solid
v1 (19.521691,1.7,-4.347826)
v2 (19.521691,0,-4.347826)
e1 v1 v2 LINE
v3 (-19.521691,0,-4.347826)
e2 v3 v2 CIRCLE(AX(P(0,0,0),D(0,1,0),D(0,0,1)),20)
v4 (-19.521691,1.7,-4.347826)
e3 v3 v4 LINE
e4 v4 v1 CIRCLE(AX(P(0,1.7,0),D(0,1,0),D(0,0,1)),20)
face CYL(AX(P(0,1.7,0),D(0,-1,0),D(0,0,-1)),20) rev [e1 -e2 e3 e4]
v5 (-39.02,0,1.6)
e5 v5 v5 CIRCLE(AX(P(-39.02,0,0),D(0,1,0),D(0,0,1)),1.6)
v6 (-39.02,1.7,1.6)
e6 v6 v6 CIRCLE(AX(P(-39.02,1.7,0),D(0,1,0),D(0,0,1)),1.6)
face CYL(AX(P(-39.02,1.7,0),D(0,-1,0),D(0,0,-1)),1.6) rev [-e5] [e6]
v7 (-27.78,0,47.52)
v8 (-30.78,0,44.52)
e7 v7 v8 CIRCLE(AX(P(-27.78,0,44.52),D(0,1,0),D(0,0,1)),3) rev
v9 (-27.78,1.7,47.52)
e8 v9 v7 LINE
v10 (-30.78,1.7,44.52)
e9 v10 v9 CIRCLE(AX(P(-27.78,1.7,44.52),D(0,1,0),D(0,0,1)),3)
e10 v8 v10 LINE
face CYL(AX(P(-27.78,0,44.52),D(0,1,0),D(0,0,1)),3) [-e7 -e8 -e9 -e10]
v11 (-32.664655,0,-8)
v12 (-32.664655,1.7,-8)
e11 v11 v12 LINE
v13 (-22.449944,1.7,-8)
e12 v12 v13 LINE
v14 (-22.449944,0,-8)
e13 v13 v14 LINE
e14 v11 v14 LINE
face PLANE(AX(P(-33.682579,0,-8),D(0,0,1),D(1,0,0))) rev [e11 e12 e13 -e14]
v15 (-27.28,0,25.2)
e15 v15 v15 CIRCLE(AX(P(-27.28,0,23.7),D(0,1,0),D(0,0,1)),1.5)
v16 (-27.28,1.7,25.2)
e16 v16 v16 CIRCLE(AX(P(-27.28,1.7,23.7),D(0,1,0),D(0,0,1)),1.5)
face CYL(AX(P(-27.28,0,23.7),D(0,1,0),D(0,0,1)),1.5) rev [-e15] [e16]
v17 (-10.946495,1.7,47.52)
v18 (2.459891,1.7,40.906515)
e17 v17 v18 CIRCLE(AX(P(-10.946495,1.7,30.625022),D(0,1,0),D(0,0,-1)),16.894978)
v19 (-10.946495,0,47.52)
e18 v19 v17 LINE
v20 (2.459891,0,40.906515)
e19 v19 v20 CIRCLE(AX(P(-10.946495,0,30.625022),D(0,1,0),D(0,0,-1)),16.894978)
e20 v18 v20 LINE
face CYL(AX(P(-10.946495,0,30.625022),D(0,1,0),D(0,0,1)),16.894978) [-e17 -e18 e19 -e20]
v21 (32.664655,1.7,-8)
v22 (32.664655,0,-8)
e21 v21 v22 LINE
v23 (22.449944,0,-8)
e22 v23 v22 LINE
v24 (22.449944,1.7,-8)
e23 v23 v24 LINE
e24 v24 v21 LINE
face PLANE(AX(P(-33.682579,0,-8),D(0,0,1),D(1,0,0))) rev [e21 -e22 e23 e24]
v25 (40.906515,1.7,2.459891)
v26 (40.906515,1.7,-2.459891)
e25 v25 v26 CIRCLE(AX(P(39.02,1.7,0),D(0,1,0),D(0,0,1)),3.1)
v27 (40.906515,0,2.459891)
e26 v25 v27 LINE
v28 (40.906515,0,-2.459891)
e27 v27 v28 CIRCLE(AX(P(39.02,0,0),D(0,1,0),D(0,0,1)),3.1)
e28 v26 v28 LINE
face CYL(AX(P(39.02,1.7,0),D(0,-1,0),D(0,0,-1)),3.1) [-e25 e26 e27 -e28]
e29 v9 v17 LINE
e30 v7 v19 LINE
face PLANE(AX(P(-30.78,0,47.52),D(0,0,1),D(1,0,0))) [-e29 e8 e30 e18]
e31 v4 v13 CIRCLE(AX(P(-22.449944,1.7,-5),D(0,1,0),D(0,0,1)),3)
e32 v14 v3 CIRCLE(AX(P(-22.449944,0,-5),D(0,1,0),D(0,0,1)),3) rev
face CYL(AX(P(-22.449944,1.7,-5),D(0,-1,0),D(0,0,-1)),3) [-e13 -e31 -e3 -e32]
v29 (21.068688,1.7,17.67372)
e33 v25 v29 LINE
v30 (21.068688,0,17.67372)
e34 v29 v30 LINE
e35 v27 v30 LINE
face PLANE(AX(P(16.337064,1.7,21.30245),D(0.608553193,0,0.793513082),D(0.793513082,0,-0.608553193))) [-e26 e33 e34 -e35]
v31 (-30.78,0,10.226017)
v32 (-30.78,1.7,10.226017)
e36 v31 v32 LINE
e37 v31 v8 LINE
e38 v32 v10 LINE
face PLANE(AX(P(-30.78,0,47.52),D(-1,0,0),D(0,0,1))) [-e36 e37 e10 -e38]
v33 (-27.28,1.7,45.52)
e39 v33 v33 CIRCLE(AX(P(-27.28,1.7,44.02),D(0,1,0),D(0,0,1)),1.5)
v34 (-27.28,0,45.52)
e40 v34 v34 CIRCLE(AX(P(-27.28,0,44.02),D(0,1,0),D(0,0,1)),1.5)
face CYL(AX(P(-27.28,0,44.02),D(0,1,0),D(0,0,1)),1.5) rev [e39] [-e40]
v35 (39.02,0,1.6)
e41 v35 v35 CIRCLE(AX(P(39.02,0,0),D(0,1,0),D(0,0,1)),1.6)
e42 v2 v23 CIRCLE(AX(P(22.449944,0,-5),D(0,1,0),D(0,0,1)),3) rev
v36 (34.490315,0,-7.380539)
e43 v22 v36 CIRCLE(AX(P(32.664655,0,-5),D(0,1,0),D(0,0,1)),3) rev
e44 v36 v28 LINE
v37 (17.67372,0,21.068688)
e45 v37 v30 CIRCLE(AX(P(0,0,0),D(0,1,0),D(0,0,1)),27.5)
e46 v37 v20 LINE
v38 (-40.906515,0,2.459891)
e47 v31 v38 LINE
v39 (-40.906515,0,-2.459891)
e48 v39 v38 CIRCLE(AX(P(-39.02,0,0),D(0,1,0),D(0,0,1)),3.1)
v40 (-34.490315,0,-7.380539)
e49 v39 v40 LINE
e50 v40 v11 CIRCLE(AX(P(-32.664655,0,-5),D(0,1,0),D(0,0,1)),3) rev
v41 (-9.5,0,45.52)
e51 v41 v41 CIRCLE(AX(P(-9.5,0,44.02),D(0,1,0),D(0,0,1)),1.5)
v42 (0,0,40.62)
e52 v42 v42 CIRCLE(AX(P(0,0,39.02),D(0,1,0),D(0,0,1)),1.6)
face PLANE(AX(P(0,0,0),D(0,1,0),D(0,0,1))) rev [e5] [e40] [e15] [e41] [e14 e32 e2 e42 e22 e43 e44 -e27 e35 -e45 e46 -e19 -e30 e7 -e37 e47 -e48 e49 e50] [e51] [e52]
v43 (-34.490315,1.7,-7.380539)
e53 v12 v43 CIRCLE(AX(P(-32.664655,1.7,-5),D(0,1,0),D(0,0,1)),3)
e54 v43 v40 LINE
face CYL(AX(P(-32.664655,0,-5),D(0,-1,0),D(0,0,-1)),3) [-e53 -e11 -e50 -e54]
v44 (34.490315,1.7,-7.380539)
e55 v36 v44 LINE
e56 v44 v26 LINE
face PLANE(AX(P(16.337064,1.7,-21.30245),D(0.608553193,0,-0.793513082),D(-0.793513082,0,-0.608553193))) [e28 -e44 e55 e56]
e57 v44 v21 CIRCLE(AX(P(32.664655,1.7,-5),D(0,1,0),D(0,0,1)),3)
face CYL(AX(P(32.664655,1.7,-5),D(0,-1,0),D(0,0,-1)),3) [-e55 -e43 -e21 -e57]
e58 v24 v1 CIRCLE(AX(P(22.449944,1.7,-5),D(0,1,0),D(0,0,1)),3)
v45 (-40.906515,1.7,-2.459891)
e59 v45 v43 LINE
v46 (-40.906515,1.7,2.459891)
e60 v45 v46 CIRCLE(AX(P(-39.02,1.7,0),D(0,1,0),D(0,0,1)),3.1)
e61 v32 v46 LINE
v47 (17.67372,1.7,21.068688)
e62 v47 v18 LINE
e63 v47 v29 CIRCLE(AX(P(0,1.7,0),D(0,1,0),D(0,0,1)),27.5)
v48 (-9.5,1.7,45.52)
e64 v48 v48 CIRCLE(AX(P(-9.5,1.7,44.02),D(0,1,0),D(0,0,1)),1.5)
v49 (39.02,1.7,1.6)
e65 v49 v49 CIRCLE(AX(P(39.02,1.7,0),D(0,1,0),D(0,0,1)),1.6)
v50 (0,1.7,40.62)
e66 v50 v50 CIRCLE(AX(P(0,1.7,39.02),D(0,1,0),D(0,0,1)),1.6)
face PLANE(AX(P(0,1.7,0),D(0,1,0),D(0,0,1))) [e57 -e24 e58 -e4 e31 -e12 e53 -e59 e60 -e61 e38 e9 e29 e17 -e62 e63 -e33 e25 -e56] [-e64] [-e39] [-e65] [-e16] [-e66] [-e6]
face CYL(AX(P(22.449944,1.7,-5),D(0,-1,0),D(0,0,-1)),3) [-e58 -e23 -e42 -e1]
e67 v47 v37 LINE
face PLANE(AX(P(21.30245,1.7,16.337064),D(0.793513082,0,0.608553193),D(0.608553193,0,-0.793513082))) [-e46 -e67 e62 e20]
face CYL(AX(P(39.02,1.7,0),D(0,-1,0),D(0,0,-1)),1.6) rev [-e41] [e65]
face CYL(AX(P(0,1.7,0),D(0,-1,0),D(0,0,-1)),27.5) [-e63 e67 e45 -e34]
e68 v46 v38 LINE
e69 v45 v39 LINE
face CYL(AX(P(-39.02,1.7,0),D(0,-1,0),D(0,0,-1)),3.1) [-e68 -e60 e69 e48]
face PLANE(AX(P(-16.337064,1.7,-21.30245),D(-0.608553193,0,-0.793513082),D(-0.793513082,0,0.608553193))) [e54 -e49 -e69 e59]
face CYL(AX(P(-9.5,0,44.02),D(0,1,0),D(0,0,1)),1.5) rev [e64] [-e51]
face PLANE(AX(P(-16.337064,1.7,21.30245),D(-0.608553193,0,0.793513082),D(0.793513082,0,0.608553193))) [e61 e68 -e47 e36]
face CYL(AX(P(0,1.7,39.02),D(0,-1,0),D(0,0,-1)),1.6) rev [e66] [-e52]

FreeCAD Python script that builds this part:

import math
import FreeCAD as App
import Part
import Sketcher
from FreeCAD import Vector
Q = App.Units.Quantity


def edges_at(feature, points):
    """Names of the edges that pass closest to the given points."""
    edges = feature.Shape.Edges
    near = lambda p: min(range(len(edges)), key=lambda i: edges[i].distToShape(Part.Vertex(*p))[0])
    return sorted({f"Edge{near(p) + 1}" for p in points})

doc = App.newDocument("Part")
body = doc.addObject("PartDesign::Body", "Body")

sketch1 = body.newObject("Sketcher::SketchObject", "Sketch")
sketch1.AttachmentSupport = (doc.getObject("XZ_Plane"), [""])
sketch1.MapMode = "FlatFace"
sketch1.addGeometry(Part.LineSegment(Vector(-17.7, 21.1, 0), Vector(-2.5, 40.9, 0)), False)
sketch1.addGeometry(Part.ArcOfCircle(Part.Circle(Vector(0, 39, 0), Vector(0, 0, 1), 3.1), math.radians(37), math.radians(143)), False)
sketch1.addGeometry(Part.LineSegment(Vector(2.5, 40.9, 0), Vector(17.7, 21.1, 0)), False)
sketch1.addGeometry(Part.ArcOfCircle(Part.Circle(Vector(0, 0, 0), Vector(0, 0, 1), 27.5), math.radians(39.99), math.radians(50.01)), False)
sketch1.addGeometry(Part.LineSegment(Vector(21.1, 17.7, 0), Vector(40.9, 2.5, 0)), False)
sketch1.addGeometry(Part.ArcOfCircle(Part.Circle(Vector(39, 0, 0), Vector(0, 0, 1), 3.1), math.radians(-53), math.radians(53)), False)
sketch1.addGeometry(Part.LineSegment(Vector(40.9, -2.5, 0), Vector(21.1, -17.7, 0)), False)
sketch1.addGeometry(Part.ArcOfCircle(Part.Circle(Vector(0, 0, 0), Vector(0, 0, 1), 27.5), math.radians(-50.01), math.radians(-39.99)), False)
sketch1.addGeometry(Part.LineSegment(Vector(17.7, -21.1, 0), Vector(2.5, -40.9, 0)), False)
sketch1.addGeometry(Part.ArcOfCircle(Part.Circle(Vector(0, -39, 0), Vector(0, 0, 1), 3.1), math.radians(-143), math.radians(-37)), False)
sketch1.addGeometry(Part.LineSegment(Vector(-2.5, -40.9, 0), Vector(-17.7, -21.1, 0)), False)
sketch1.addGeometry(Part.ArcOfCircle(Part.Circle(Vector(0, 0, 0), Vector(0, 0, 1), 27.5), math.radians(-140.01), math.radians(-129.99)), False)
sketch1.addGeometry(Part.LineSegment(Vector(-21.1, -17.7, 0), Vector(-40.9, -2.5, 0)), False)
sketch1.addGeometry(Part.ArcOfCircle(Part.Circle(Vector(-39, 0, 0), Vector(0, 0, 1), 3.1), math.radians(127), math.radians(233)), False)
sketch1.addGeometry(Part.LineSegment(Vector(-40.9, 2.5, 0), Vector(-21.1, 17.7, 0)), False)
sketch1.addGeometry(Part.ArcOfCircle(Part.Circle(Vector(0, 0, 0), Vector(0, 0, 1), 27.5), math.radians(129.99), math.radians(140.01)), False)
sketch1.addGeometry(Part.Circle(Vector(0, 39, 0), Vector(0, 0, 1), 1.6), False)
sketch1.addGeometry(Part.Circle(Vector(-39, 0, 0), Vector(0, 0, 1), 1.6), False)
sketch1.addGeometry(Part.Circle(Vector(0, 0, 0), Vector(0, 0, 1), 20), False)
sketch1.addGeometry(Part.Circle(Vector(39, 0, 0), Vector(0, 0, 1), 1.6), False)
sketch1.addGeometry(Part.Circle(Vector(0, -39, 0), Vector(0, 0, 1), 1.6), False)
sketch1.addConstraint(Sketcher.Constraint("Tangent", 0, 2, 1, 2))
sketch1.addConstraint(Sketcher.Constraint("Tangent", 1, 1, 2, 1))
sketch1.addConstraint(Sketcher.Constraint("Coincident", 2, 2, 3, 2))
sketch1.addConstraint(Sketcher.Constraint("Coincident", 3, 1, 4, 1))
sketch1.addConstraint(Sketcher.Constraint("Tangent", 4, 2, 5, 2))
sketch1.addConstraint(Sketcher.Constraint("Tangent", 5, 1, 6, 1))
sketch1.addConstraint(Sketcher.Constraint("Coincident", 6, 2, 7, 2))
sketch1.addConstraint(Sketcher.Constraint("Coincident", 7, 1, 8, 1))
sketch1.addConstraint(Sketcher.Constraint("Tangent", 8, 2, 9, 2))
sketch1.addConstraint(Sketcher.Constraint("Tangent", 9, 1, 10, 1))
sketch1.addConstraint(Sketcher.Constraint("Coincident", 10, 2, 11, 2))
sketch1.addConstraint(Sketcher.Constraint("Coincident", 11, 1, 12, 1))
sketch1.addConstraint(Sketcher.Constraint("Tangent", 12, 2, 13, 2))
sketch1.addConstraint(Sketcher.Constraint("Tangent", 13, 1, 14, 1))
sketch1.addConstraint(Sketcher.Constraint("Coincident", 14, 2, 15, 2))
sketch1.addConstraint(Sketcher.Constraint("Coincident", 15, 1, 0, 1))
sketch1.addConstraint(Sketcher.Constraint("Coincident", 3, 3, -1, 1))
sketch1.addConstraint(Sketcher.Constraint("Coincident", 7, 3, -1, 1))
sketch1.addConstraint(Sketcher.Constraint("Coincident", 11, 3, -1, 1))
sketch1.addConstraint(Sketcher.Constraint("Coincident", 15, 3, -1, 1))
sketch1.addConstraint(Sketcher.Constraint("Coincident", 18, 3, -1, 1))
sketch1.addConstraint(Sketcher.Constraint("Coincident", 16, 3, 1, 3))
sketch1.addConstraint(Sketcher.Constraint("Coincident", 17, 3, 13, 3))
sketch1.addConstraint(Sketcher.Constraint("Coincident", 19, 3, 5, 3))
sketch1.addConstraint(Sketcher.Constraint("Coincident", 20, 3, 9, 3))
sketch1.addConstraint(Sketcher.Constraint("Equal", 1, 5))
sketch1.addConstraint(Sketcher.Constraint("Equal", 3, 7))
sketch1.addConstraint(Sketcher.Constraint("Equal", 5, 9))
sketch1.addConstraint(Sketcher.Constraint("Equal", 7, 11))
sketch1.addConstraint(Sketcher.Constraint("Equal", 9, 13))
sketch1.addConstraint(Sketcher.Constraint("Equal", 11, 15))
sketch1.addConstraint(Sketcher.Constraint("Equal", 16, 17))
sketch1.addConstraint(Sketcher.Constraint("Equal", 17, 19))
sketch1.addConstraint(Sketcher.Constraint("Equal", 19, 20))
sketch1.addConstraint(Sketcher.Constraint("Symmetric", 1, 3, 9, 3, -1, 1))
sketch1.addConstraint(Sketcher.Constraint("Symmetric", 5, 3, 13, 3, -1, 1))
sketch1.addConstraint(Sketcher.Constraint("Symmetric", 0, 2, 1, 1, -2))
sketch1.addConstraint(Sketcher.Constraint("Symmetric", 5, 1, 12, 2, -2))
sketch1.addConstraint(Sketcher.Constraint("Perpendicular", 0, 4))
sketch1.addConstraint(Sketcher.Constraint("Perpendicular", 2, 6))
sketch1.addConstraint(Sketcher.Constraint("Perpendicular", 4, 8))
sketch1.addConstraint(Sketcher.Constraint("Perpendicular", 6, 10))
sketch1.addConstraint(Sketcher.Constraint("Perpendicular", 10, 14))
sketch1.addConstraint(Sketcher.Constraint("Equal", 2, 4))
sketch1.addConstraint(Sketcher.Constraint("Diameter", 18, Q("40 mm")))
sketch1.addConstraint(Sketcher.Constraint("Diameter", 16, Q("3.2 mm")))
sketch1.addConstraint(Sketcher.Constraint("Radius", 1, Q("3.1 mm")))
sketch1.addConstraint(Sketcher.Constraint("Radius", 3, Q("27.5 mm")))
sketch1.addConstraint(Sketcher.Constraint("Distance", 0, Q("25 mm")))
sketch1.addConstraint(Sketcher.Constraint("DistanceY", -1, 1, 1, 3, Q("39.02 mm")))
pad1 = body.newObject("PartDesign::Pad", "Pad")
pad1.Profile = sketch1
pad1.Length = 1.7
pad1.Reversed = True

sketch2 = body.newObject("Sketcher::SketchObject", "Sketch001")
sketch2.AttachmentSupport = (doc.getObject("XZ_Plane"), [""])
sketch2.MapMode = "FlatFace"
sketch2.addGeometry(Part.LineSegment(Vector(-30.8, 10.2, 0), Vector(-30.8, 47.5, 0)), False)
sketch2.addGeometry(Part.LineSegment(Vector(-30.8, 47.5, 0), Vector(-10.9, 47.5, 0)), False)
sketch2.addGeometry(Part.ArcOfCircle(Part.Circle(Vector(-10.9, 30.6, 0), Vector(0, 0, 1), 16.9), math.radians(37), math.radians(90)), False)
sketch2.addGeometry(Part.ArcOfCircle(Part.Circle(Vector(0, 39, 0), Vector(0, 0, 1), 3.1), math.radians(37), math.radians(143)), False)
sketch2.addGeometry(Part.LineSegment(Vector(-2.5, 40.9, 0), Vector(-17.7, 21.1, 0)), False)
sketch2.addGeometry(Part.ArcOfCircle(Part.Circle(Vector(0, 0, 0), Vector(0, 0, 1), 27.5), math.radians(129.99), math.radians(140.01)), False)
sketch2.addGeometry(Part.LineSegment(Vector(-21.1, 17.7, 0), Vector(-30.8, 10.2, 0)), False)
sketch2.addGeometry(Part.Circle(Vector(-9.5, 44, 0), Vector(0, 0, 1), 1.5), False)
sketch2.addGeometry(Part.Circle(Vector(-27.3, 44, 0), Vector(0, 0, 1), 1.5), False)
sketch2.addGeometry(Part.Circle(Vector(-27.3, 23.7, 0), Vector(0, 0, 1), 1.5), False)
sketch2.addConstraint(Sketcher.Constraint("Coincident", 0, 2, 1, 1))
sketch2.addConstraint(Sketcher.Constraint("Tangent", 1, 2, 2, 2))
sketch2.addConstraint(Sketcher.Constraint("Tangent", 2, 1, 3, 1))
sketch2.addConstraint(Sketcher.Constraint("Tangent", 3, 2, 4, 1))
sketch2.addConstraint(Sketcher.Constraint("Coincident", 4, 2, 5, 1))
sketch2.addConstraint(Sketcher.Constraint("Coincident", 5, 2, 6, 1))
sketch2.addConstraint(Sketcher.Constraint("Coincident", 6, 2, 0, 1))
sketch2.addConstraint(Sketcher.Constraint("Vertical", 0))
sketch2.addConstraint(Sketcher.Constraint("Horizontal", 1))
sketch2.addConstraint(Sketcher.Constraint("Coincident", 5, 3, -1, 1))
sketch2.addConstraint(Sketcher.Constraint("Equal", 7, 8))
sketch2.addConstraint(Sketcher.Constraint("Equal", 8, 9))
sketch2.addConstraint(Sketcher.Constraint("Symmetric", 2, 1, 3, 2, -2))
sketch2.addConstraint(Sketcher.Constraint("Horizontal", 7, 3, 8, 3))
sketch2.addConstraint(Sketcher.Constraint("Vertical", 8, 3, 9, 3))
sketch2.addConstraint(Sketcher.Constraint("Diameter", 7, Q("3 mm")))
sketch2.addConstraint(Sketcher.Constraint("Radius", 3, Q("3.1 mm")))
sketch2.addConstraint(Sketcher.Constraint("Radius", 5, Q("27.5 mm")))
sketch2.addConstraint(Sketcher.Constraint("Distance", 4, Q("25 mm")))
sketch2.addConstraint(Sketcher.Constraint("DistanceY", 3, 3, 7, 3, Q("5 mm")))
sketch2.addConstraint(Sketcher.Constraint("DistanceX", 7, 3, -1, 1, Q("9.5 mm")))
sketch2.addConstraint(Sketcher.Constraint("DistanceY", -1, 1, 9, 3, Q("23.7 mm")))
sketch2.addConstraint(Sketcher.Constraint("DistanceX", 0, 2, 8, 3, Q("3.5 mm")))
sketch2.addConstraint(Sketcher.Constraint("DistanceY", 8, 3, 0, 2, Q("3.5 mm")))
sketch2.addConstraint(Sketcher.Constraint("DistanceY", -1, 1, 3, 3, Q("39.02 mm")))
sketch2.addConstraint(Sketcher.Constraint("DistanceX", 8, 3, -1, 1, Q("27.28 mm")))
sketch2.addConstraint(Sketcher.Constraint("DistanceY", 5, 2, 2, 3, Q("12.951302 mm")))
sketch2.addConstraint(Sketcher.Constraint("DistanceY", 0, 1, 0, 2, Q("37.293983 mm")))
pad2 = body.newObject("PartDesign::Pad", "Pad001")
pad2.Profile = sketch2
pad2.Length = 1.7
pad2.Reversed = True

sketch3 = body.newObject("Sketcher::SketchObject", "Sketch002")
sketch3.AttachmentSupport = (doc.getObject("XZ_Plane"), [""])
sketch3.MapMode = "FlatFace"
sketch3.AttachmentOffset = App.Placement(Vector(0, 0, -1.7), App.Rotation())
sketch3.addGeometry(Part.LineSegment(Vector(-34, -44, 0), Vector(-34, -8, 0)), False)
sketch3.addGeometry(Part.LineSegment(Vector(-34, -8, 0), Vector(34, -8, 0)), False)
sketch3.addGeometry(Part.LineSegment(Vector(34, -8, 0), Vector(34, -44, 0)), False)
sketch3.addGeometry(Part.LineSegment(Vector(34, -44, 0), Vector(-34, -44, 0)), False)
sketch3.addConstraint(Sketcher.Constraint("Coincident", 0, 2, 1, 1))
sketch3.addConstraint(Sketcher.Constraint("Coincident", 1, 2, 2, 1))
sketch3.addConstraint(Sketcher.Constraint("Coincident", 2, 2, 3, 1))
sketch3.addConstraint(Sketcher.Constraint("Coincident", 3, 2, 0, 1))
sketch3.addConstraint(Sketcher.Constraint("Vertical", 0))
sketch3.addConstraint(Sketcher.Constraint("Horizontal", 1))
sketch3.addConstraint(Sketcher.Constraint("Vertical", 2))
sketch3.addConstraint(Sketcher.Constraint("Horizontal", 3))
sketch3.addConstraint(Sketcher.Constraint("DistanceY", 0, 1, 0, 2, Q("36 mm")))
sketch3.addConstraint(Sketcher.Constraint("DistanceY", 0, 2, -1, 1, Q("8 mm")))
sketch3.addConstraint(Sketcher.Constraint("DistanceX", 1, 1, 1, 2, Q("67.365158 mm")))
sketch3.addConstraint(Sketcher.Constraint("DistanceX", 0, 2, -1, 1, Q("33.682579 mm")))
pocket1 = body.newObject("PartDesign::Pocket", "Pocket")
pocket1.Profile = sketch3
pocket1.Length = 1.7
pocket1.Reversed = True
doc.recompute()

fillet = body.newObject("PartDesign::Fillet", "Fillet")
fillet.Base = (pocket1, edges_at(pocket1, [
    (-18.33, 0.85, -8),
    (18.33, 0.85, -8),
    (-33.683, 0.85, -8),
    (33.683, 0.85, -8),
    (-30.78, 0.85, 47.52),
]))
fillet.Radius = 3

doc.recompute()
